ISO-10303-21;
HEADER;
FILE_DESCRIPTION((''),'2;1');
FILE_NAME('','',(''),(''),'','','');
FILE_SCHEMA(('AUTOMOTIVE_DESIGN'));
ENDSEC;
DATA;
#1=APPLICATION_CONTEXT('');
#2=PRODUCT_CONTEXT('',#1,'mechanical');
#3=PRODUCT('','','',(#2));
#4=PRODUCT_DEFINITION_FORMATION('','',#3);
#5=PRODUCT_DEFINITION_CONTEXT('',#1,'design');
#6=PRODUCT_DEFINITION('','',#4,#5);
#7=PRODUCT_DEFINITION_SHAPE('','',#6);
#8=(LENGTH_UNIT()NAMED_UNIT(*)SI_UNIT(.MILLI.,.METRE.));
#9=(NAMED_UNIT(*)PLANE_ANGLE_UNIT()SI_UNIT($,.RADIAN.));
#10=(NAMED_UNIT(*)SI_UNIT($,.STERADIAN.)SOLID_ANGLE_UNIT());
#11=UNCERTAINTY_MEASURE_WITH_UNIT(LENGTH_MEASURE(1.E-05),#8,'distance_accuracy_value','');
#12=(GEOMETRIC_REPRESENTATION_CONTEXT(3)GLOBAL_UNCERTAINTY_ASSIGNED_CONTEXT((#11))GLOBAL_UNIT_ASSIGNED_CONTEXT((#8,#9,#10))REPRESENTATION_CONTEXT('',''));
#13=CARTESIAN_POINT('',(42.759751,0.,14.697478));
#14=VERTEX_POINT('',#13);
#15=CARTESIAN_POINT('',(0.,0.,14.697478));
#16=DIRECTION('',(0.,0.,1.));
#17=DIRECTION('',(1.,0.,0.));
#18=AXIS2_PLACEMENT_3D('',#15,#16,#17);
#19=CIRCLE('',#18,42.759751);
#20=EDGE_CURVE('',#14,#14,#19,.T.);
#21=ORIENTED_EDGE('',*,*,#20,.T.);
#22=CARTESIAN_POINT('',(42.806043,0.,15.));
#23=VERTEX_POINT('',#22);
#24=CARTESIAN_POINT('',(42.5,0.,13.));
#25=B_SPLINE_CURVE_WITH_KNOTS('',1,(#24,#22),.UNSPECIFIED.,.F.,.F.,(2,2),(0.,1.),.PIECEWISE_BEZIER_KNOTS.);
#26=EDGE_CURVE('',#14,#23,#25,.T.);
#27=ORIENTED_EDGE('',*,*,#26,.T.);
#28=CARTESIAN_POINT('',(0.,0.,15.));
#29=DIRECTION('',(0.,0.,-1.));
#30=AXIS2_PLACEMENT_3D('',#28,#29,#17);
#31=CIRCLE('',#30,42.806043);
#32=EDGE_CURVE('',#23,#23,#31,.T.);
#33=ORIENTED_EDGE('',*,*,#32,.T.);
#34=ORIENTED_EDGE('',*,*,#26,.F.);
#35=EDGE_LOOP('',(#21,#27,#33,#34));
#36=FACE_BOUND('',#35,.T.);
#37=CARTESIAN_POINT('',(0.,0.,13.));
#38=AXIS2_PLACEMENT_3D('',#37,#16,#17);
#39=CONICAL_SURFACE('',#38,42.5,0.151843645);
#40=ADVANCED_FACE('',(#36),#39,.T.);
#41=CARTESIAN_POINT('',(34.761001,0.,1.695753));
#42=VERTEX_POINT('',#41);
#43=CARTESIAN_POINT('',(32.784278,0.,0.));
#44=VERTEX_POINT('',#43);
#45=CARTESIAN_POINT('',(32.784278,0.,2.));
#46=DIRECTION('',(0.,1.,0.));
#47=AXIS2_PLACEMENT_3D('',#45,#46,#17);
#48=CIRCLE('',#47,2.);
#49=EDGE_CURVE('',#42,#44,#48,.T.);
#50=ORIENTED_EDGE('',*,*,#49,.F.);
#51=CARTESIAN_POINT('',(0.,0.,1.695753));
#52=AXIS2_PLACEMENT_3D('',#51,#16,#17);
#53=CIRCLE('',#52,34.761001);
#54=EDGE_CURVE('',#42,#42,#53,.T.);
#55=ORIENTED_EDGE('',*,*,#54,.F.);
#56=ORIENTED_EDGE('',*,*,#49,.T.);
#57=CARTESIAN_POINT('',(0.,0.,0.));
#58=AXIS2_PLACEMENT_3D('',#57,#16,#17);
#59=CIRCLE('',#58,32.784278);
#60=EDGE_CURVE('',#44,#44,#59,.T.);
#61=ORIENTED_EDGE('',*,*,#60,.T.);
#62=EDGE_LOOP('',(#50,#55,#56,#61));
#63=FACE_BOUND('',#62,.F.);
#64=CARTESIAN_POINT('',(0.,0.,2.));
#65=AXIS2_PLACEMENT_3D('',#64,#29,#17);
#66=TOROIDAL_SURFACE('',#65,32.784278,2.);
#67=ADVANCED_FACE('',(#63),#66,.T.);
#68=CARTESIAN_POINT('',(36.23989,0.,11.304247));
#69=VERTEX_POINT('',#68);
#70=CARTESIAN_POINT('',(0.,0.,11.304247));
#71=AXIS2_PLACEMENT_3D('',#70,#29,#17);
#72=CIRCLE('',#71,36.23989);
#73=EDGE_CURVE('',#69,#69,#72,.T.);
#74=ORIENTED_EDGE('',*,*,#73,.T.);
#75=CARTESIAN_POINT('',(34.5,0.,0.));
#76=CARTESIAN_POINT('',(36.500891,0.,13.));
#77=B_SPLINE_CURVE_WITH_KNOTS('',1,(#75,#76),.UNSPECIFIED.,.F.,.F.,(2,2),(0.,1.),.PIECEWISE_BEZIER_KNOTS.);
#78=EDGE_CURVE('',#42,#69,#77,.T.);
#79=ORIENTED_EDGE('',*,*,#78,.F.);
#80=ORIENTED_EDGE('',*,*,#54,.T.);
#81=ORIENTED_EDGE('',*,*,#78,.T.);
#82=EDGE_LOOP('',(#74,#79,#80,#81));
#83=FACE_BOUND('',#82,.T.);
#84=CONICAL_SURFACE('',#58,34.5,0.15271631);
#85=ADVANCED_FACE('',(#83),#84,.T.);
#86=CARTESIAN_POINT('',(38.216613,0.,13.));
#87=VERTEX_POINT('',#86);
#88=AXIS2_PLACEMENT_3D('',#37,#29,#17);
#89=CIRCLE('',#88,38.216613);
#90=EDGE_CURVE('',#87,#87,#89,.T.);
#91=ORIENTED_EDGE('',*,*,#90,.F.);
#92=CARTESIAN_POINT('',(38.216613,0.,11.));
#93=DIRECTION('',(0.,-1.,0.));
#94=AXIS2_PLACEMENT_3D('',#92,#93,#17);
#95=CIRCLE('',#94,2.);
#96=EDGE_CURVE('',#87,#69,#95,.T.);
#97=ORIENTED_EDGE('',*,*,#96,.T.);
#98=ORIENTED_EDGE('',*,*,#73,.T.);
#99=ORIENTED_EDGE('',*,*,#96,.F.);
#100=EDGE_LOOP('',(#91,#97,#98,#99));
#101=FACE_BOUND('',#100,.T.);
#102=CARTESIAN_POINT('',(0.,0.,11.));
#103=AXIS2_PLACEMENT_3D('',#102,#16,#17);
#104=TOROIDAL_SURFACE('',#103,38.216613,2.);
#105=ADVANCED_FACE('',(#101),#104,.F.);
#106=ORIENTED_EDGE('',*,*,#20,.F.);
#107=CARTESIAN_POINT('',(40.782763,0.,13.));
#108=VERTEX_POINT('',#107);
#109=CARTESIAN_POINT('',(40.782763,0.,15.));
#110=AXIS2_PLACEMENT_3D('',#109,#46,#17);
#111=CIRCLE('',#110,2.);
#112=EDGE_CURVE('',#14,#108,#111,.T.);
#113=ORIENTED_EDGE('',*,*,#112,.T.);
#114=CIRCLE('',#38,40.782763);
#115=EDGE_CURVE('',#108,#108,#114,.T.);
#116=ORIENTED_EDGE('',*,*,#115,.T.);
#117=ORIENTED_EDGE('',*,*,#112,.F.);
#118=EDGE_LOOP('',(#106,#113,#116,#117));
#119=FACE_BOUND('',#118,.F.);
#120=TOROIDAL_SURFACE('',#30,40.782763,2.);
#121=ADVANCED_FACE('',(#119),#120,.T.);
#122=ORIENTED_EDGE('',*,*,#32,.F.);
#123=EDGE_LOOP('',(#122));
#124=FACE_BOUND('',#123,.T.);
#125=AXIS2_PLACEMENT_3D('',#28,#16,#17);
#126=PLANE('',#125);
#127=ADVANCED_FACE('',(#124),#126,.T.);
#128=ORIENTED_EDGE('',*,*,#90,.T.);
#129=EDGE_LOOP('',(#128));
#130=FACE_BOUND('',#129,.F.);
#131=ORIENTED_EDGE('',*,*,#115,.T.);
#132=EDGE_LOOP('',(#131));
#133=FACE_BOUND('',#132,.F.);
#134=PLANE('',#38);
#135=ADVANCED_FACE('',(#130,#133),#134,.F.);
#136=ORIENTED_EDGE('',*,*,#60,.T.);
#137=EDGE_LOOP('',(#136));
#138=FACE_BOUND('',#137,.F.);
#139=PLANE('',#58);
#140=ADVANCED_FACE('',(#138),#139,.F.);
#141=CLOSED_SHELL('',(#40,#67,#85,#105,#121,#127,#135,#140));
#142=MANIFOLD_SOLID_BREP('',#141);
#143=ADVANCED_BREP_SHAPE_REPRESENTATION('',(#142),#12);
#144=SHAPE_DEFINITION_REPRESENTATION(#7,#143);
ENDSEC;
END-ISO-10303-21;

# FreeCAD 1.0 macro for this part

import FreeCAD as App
import Part
import Sketcher
from FreeCAD import Vector
Q = App.Units.Quantity


def edges_at(feature, points):
    """Names of the edges that pass closest to the given points."""
    edges = feature.Shape.Edges
    near = lambda p: min(range(len(edges)), key=lambda i: edges[i].distToShape(Part.Vertex(*p))[0])
    return sorted({f"Edge{near(p) + 1}" for p in points})

doc = App.newDocument("Part")
body = doc.addObject("PartDesign::Body", "Body")

# Sketch on XY plane
sketch1 = body.newObject("Sketcher::SketchObject", "Sketch")
sketch1.AttachmentSupport = (doc.getObject("XY_Plane"), [""])
sketch1.MapMode = "FlatFace"
sketch1.addGeometry(Part.Circle(Vector(0, 0, 0), Vector(0, 0, 1), 34), False)
sketch1.addConstraint([
    Sketcher.Constraint("Coincident", 0, 3, -1, 1),
    Sketcher.Constraint("Diameter", 0, Q("69 mm")),
])
pad1 = body.newObject("PartDesign::Pad", "Pad")
pad1.Profile = sketch1
pad1.Length = 13
pad1.TaperAngle = 8.75

# Sketch on XY plane
sketch2 = body.newObject("Sketcher::SketchObject", "Sketch001")
sketch2.AttachmentSupport = (doc.getObject("XY_Plane"), [""])
sketch2.MapMode = "FlatFace"
sketch2.AttachmentOffset = App.Placement(Vector(0, 0, 13), App.Rotation())
sketch2.addGeometry(Part.Circle(Vector(0, 0, 0), Vector(0, 0, 1), 42), False)
sketch2.addConstraint([
    Sketcher.Constraint("Coincident", 0, 3, -1, 1),
    Sketcher.Constraint("Diameter", 0, Q("85 mm")),
])
pad2 = body.newObject("PartDesign::Pad", "Pad001")
pad2.Profile = sketch2
pad2.Length = 2
pad2.TaperAngle = 8.7
doc.recompute()

fillet = body.newObject("PartDesign::Fillet", "Fillet")
fillet.Base = (pad2, edges_at(pad2, [(-34.5, 0, 0), (-36.501, 0, 13), (-42.5, 0, 13)]))
fillet.Radius = 2

doc.recompute()
